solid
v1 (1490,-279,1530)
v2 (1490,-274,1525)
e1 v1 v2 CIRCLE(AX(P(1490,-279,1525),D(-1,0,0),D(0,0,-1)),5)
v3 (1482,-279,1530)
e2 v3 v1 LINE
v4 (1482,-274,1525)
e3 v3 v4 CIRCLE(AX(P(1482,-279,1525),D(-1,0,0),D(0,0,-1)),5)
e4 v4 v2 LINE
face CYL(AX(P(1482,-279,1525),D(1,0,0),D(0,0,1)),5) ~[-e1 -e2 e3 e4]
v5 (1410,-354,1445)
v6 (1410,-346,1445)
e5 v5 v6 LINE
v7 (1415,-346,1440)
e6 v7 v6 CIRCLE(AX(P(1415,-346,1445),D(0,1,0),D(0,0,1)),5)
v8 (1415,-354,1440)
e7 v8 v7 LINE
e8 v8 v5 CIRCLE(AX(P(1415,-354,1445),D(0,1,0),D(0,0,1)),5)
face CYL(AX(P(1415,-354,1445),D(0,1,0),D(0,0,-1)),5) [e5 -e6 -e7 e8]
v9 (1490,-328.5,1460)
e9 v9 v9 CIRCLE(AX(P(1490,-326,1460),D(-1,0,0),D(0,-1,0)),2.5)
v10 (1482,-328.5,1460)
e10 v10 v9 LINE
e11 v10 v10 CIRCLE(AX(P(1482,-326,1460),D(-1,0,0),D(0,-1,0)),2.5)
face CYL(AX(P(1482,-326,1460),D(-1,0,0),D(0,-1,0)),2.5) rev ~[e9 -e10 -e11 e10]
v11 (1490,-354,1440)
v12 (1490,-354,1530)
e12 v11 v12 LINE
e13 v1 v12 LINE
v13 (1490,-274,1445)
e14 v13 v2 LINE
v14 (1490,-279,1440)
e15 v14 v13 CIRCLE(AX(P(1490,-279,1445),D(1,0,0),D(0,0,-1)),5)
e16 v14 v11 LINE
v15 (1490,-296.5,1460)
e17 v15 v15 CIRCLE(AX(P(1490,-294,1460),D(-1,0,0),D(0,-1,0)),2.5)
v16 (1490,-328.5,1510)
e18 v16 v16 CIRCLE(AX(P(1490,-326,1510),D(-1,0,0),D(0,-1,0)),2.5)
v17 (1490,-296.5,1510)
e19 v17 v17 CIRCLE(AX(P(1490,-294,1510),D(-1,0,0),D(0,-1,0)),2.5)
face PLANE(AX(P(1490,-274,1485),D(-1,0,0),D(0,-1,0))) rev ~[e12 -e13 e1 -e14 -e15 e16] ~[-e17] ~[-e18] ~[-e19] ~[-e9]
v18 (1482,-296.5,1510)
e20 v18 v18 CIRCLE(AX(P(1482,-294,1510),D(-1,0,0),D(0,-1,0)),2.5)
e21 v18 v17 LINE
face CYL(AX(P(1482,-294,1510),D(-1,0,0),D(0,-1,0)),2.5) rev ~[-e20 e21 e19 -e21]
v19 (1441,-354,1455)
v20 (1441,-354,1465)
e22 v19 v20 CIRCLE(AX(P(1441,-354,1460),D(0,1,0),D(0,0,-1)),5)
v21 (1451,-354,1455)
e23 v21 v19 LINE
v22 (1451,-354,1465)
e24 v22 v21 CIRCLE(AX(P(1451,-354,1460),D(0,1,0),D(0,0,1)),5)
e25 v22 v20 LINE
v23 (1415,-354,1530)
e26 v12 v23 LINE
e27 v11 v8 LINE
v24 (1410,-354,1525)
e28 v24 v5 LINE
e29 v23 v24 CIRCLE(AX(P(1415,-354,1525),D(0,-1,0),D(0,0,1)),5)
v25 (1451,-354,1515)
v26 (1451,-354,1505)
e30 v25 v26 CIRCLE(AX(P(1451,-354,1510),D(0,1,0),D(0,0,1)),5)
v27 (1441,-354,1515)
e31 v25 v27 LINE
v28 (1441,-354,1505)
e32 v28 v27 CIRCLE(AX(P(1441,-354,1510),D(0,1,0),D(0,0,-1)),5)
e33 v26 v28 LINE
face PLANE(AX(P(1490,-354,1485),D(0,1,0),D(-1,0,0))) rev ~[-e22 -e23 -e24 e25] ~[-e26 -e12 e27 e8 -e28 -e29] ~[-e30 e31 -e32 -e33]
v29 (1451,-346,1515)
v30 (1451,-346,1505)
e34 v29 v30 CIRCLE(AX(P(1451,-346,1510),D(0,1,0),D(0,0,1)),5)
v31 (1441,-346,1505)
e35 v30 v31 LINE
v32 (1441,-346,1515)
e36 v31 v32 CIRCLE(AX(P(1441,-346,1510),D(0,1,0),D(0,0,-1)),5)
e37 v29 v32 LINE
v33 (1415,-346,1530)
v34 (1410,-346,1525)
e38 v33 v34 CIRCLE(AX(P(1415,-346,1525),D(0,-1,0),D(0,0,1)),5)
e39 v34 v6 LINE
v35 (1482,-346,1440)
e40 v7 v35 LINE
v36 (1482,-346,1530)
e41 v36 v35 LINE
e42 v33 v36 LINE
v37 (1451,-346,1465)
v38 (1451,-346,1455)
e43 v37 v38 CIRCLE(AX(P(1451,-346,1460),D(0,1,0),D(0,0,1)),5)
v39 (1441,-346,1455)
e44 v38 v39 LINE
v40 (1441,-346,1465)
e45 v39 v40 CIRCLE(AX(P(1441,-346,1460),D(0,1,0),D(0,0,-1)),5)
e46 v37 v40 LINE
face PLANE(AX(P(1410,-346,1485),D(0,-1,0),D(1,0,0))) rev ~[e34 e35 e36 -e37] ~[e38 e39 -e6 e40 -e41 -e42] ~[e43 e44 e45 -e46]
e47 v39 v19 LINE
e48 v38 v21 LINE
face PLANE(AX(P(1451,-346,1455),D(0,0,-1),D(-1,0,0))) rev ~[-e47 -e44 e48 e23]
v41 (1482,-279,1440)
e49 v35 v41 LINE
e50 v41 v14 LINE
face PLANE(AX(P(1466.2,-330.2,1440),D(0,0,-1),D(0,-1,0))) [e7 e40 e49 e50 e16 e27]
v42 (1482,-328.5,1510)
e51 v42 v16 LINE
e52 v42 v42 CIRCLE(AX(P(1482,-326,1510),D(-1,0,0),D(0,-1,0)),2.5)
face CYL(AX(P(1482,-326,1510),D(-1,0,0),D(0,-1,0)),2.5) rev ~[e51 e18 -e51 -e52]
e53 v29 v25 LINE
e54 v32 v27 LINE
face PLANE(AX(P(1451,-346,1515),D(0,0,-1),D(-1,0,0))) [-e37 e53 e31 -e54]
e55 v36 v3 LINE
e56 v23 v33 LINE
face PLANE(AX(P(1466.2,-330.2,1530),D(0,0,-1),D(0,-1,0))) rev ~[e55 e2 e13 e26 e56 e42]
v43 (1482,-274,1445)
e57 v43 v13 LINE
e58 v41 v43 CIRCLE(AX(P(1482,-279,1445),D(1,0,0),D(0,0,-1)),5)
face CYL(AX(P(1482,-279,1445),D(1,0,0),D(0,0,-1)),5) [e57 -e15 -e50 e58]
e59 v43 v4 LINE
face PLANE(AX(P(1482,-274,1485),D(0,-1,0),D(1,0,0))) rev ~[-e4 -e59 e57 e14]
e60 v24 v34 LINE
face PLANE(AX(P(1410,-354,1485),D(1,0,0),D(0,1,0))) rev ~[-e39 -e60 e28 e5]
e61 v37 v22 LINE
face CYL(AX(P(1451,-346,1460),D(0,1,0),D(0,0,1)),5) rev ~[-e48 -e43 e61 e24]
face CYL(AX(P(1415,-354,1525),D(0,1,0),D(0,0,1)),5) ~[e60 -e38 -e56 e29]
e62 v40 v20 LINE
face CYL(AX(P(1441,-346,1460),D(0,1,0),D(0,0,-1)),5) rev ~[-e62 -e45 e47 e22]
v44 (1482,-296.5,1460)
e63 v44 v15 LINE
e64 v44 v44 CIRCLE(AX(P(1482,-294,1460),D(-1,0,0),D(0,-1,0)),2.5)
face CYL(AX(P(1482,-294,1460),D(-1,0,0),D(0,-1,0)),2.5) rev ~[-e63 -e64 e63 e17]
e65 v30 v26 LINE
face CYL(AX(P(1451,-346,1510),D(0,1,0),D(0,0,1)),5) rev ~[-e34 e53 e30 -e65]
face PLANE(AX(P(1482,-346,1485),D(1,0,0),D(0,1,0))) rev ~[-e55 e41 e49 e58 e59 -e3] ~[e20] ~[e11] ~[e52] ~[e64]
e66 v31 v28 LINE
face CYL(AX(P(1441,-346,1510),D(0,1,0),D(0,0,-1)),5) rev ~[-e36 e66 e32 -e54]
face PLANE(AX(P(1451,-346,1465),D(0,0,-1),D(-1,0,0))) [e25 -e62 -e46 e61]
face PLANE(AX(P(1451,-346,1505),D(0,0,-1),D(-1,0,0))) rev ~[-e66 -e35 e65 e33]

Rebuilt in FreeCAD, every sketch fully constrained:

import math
import FreeCAD as App
import Part
import Sketcher


def edges_at(feature, points):
    """Names of the edges that pass closest to the given points."""
    edges = feature.Shape.Edges
    near = lambda p: min(range(len(edges)), key=lambda i: edges[i].distToShape(Part.Vertex(*p))[0])
    return sorted({f"Edge{near(p) + 1}" for p in points})


def add_polygon(sketch, points):
    """Adds a closed chain of lines whose ends are joined by coincident constraints."""
    first, n = sketch.GeometryCount, len(points)
    for a, b in zip(points, points[1:] + points[:1]):
        sketch.addGeometry(Part.LineSegment(App.Vector(*a, 0), App.Vector(*b, 0)), False)
    for i in range(n):
        sketch.addConstraint(Sketcher.Constraint("Coincident", first + i, 2, first + (i + 1) % n, 1))

doc = App.newDocument("Part")
body = doc.addObject("PartDesign::Body", "Body")

# Sketch on XY plane
sketch1 = body.newObject("Sketcher::SketchObject", "Sketch")
sketch1.AttachmentSupport = (doc.getObject("XY_Plane"), [""])
sketch1.MapMode = "FlatFace"
add_polygon(sketch1, [(0, 80), (0, 0), (80, 0), (80, 8), (8, 8), (8, 80)])  # lines 0-5
sketch1.addConstraint(Sketcher.Constraint("Vertical", 0))
sketch1.addConstraint(Sketcher.Constraint("Horizontal", 1))
sketch1.addConstraint(Sketcher.Constraint("Vertical", 2))
sketch1.addConstraint(Sketcher.Constraint("Horizontal", 3))
sketch1.addConstraint(Sketcher.Constraint("Vertical", 4))
sketch1.addConstraint(Sketcher.Constraint("Horizontal", 5))
sketch1.addConstraint(Sketcher.Constraint("Coincident", 0, 2, -1, 1))
sketch1.addConstraint(Sketcher.Constraint("Equal", 1, 0))
sketch1.addConstraint(Sketcher.Constraint("Equal", 5, 2))
sketch1.addConstraint(Sketcher.Constraint("DistanceX", 1, 1, 1, 2, 80.0))
sketch1.addConstraint(Sketcher.Constraint("DistanceX", 3, 2, 3, 1, 72.0))
pad1 = body.newObject("PartDesign::Pad", "Pad")
pad1.Profile = sketch1
pad1.Length = 90
pad1.Midplane = True

# Sketch on XZ plane
sketch2 = body.newObject("Sketcher::SketchObject", "Sketch001")
sketch2.AttachmentSupport = (doc.getObject("XZ_Plane"), [""])
sketch2.MapMode = "FlatFace"
sketch2.AttachmentOffset = App.Placement(App.Vector(0, 0, -8), App.Rotation())
sketch2.addGeometry(Part.Circle(App.Vector(60, 25, 0), App.Vector(0, 0, 1), 2.5), False)
sketch2.addGeometry(Part.Circle(App.Vector(28, -25, 0), App.Vector(0, 0, 1), 2.5), False)
sketch2.addGeometry(Part.Circle(App.Vector(28, 25, 0), App.Vector(0, 0, 1), 2.5), False)
sketch2.addGeometry(Part.Circle(App.Vector(60, -25, 0), App.Vector(0, 0, 1), 2.5), False)
sketch2.addConstraint(Sketcher.Constraint("Equal", 0, 1))
sketch2.addConstraint(Sketcher.Constraint("Equal", 1, 2))
sketch2.addConstraint(Sketcher.Constraint("Equal", 2, 3))
sketch2.addConstraint(Sketcher.Constraint("Symmetric", 1, 3, 2, 3, -1))
sketch2.addConstraint(Sketcher.Constraint("Symmetric", 0, 3, 3, 3, -1))
sketch2.addConstraint(Sketcher.Constraint("Horizontal", 0, 3, 2, 3))
sketch2.addConstraint(Sketcher.Constraint("Diameter", 0, 5.0))
sketch2.addConstraint(Sketcher.Constraint("DistanceX", -1, 1, 0, 3, 60.0))
sketch2.addConstraint(Sketcher.Constraint("DistanceY", -1, 1, 0, 3, 25.0))
sketch2.addConstraint(Sketcher.Constraint("DistanceX", -1, 1, 1, 3, 28.0))
pocket1 = body.newObject("PartDesign::Pocket", "Pocket")
pocket1.Profile = sketch2
pocket1.Type = "ThroughAll"
pocket1.Reversed = True

# Sketch on YZ plane
sketch3 = body.newObject("Sketcher::SketchObject", "Sketch002")
sketch3.AttachmentSupport = (doc.getObject("YZ_Plane"), [""])
sketch3.MapMode = "FlatFace"
sketch3.AttachmentOffset = App.Placement(App.Vector(0, 0, 8), App.Rotation())
sketch3.addGeometry(Part.ArcOfCircle(Part.Circle(App.Vector(39, 25, 0), App.Vector(0, 0, 1), 5), math.radians(90), math.radians(270)), False)
sketch3.addGeometry(Part.LineSegment(App.Vector(39, 20, 0), App.Vector(49, 20, 0)), False)
sketch3.addGeometry(Part.ArcOfCircle(Part.Circle(App.Vector(49, 25, 0), App.Vector(0, 0, 1), 5), math.radians(-90), math.radians(90)), False)
sketch3.addGeometry(Part.LineSegment(App.Vector(49, 30, 0), App.Vector(39, 30, 0)), False)
sketch3.addGeometry(Part.ArcOfCircle(Part.Circle(App.Vector(39, -25, 0), App.Vector(0, 0, 1), 5), math.radians(90), math.radians(270)), False)
sketch3.addGeometry(Part.LineSegment(App.Vector(39, -30, 0), App.Vector(49, -30, 0)), False)
sketch3.addGeometry(Part.ArcOfCircle(Part.Circle(App.Vector(49, -25, 0), App.Vector(0, 0, 1), 5), math.radians(-90), math.radians(90)), False)
sketch3.addGeometry(Part.LineSegment(App.Vector(49, -20, 0), App.Vector(39, -20, 0)), False)
sketch3.addConstraint(Sketcher.Constraint("Tangent", 0, 2, 1, 1))
sketch3.addConstraint(Sketcher.Constraint("Tangent", 1, 2, 2, 1))
sketch3.addConstraint(Sketcher.Constraint("Tangent", 2, 2, 3, 1))
sketch3.addConstraint(Sketcher.Constraint("Tangent", 3, 2, 0, 1))
sketch3.addConstraint(Sketcher.Constraint("Tangent", 4, 2, 5, 1))
sketch3.addConstraint(Sketcher.Constraint("Tangent", 5, 2, 6, 1))
sketch3.addConstraint(Sketcher.Constraint("Tangent", 6, 2, 7, 1))
sketch3.addConstraint(Sketcher.Constraint("Tangent", 7, 2, 4, 1))
sketch3.addConstraint(Sketcher.Constraint("Horizontal", 1))
sketch3.addConstraint(Sketcher.Constraint("Horizontal", 3))
sketch3.addConstraint(Sketcher.Constraint("Horizontal", 5))
sketch3.addConstraint(Sketcher.Constraint("Horizontal", 7))
sketch3.addConstraint(Sketcher.Constraint("Equal", 2, 4))
sketch3.addConstraint(Sketcher.Constraint("Symmetric", 0, 3, 4, 3, -1))
sketch3.addConstraint(Sketcher.Constraint("Vertical", 2, 3, 6, 3))
sketch3.addConstraint(Sketcher.Constraint("Radius", 0, 5.0))
sketch3.addConstraint(Sketcher.Constraint("DistanceX", 1, 1, 1, 2, 10.0))
sketch3.addConstraint(Sketcher.Constraint("DistanceX", -1, 1, 0, 3, 39.0))
sketch3.addConstraint(Sketcher.Constraint("DistanceY", -1, 1, 0, 3, 25.0))
pocket2 = body.newObject("PartDesign::Pocket", "Pocket001")
pocket2.Profile = sketch3
pocket2.Type = "ThroughAll"
doc.recompute()

fillet = body.newObject("PartDesign::Fillet", "Fillet")
fillet.Base = (pocket2, edges_at(pocket2, [
    (4, 80, 45),
    (80, 4, 45),
    (4, 80, -45),
    (80, 4, -45),
]))
fillet.Radius = 5
body2 = doc.addObject("PartDesign::Body", "Body001")
doc.recompute()

body.Placement = App.Placement(App.Vector(1490, -354, 1485), App.Rotation(App.Vector(0, 0, 1), 90))
boolean = body2.newObject("PartDesign::Boolean", "Boolean")
boolean.Type = "Fuse"
boolean.addObjects([body])

doc.recompute()
